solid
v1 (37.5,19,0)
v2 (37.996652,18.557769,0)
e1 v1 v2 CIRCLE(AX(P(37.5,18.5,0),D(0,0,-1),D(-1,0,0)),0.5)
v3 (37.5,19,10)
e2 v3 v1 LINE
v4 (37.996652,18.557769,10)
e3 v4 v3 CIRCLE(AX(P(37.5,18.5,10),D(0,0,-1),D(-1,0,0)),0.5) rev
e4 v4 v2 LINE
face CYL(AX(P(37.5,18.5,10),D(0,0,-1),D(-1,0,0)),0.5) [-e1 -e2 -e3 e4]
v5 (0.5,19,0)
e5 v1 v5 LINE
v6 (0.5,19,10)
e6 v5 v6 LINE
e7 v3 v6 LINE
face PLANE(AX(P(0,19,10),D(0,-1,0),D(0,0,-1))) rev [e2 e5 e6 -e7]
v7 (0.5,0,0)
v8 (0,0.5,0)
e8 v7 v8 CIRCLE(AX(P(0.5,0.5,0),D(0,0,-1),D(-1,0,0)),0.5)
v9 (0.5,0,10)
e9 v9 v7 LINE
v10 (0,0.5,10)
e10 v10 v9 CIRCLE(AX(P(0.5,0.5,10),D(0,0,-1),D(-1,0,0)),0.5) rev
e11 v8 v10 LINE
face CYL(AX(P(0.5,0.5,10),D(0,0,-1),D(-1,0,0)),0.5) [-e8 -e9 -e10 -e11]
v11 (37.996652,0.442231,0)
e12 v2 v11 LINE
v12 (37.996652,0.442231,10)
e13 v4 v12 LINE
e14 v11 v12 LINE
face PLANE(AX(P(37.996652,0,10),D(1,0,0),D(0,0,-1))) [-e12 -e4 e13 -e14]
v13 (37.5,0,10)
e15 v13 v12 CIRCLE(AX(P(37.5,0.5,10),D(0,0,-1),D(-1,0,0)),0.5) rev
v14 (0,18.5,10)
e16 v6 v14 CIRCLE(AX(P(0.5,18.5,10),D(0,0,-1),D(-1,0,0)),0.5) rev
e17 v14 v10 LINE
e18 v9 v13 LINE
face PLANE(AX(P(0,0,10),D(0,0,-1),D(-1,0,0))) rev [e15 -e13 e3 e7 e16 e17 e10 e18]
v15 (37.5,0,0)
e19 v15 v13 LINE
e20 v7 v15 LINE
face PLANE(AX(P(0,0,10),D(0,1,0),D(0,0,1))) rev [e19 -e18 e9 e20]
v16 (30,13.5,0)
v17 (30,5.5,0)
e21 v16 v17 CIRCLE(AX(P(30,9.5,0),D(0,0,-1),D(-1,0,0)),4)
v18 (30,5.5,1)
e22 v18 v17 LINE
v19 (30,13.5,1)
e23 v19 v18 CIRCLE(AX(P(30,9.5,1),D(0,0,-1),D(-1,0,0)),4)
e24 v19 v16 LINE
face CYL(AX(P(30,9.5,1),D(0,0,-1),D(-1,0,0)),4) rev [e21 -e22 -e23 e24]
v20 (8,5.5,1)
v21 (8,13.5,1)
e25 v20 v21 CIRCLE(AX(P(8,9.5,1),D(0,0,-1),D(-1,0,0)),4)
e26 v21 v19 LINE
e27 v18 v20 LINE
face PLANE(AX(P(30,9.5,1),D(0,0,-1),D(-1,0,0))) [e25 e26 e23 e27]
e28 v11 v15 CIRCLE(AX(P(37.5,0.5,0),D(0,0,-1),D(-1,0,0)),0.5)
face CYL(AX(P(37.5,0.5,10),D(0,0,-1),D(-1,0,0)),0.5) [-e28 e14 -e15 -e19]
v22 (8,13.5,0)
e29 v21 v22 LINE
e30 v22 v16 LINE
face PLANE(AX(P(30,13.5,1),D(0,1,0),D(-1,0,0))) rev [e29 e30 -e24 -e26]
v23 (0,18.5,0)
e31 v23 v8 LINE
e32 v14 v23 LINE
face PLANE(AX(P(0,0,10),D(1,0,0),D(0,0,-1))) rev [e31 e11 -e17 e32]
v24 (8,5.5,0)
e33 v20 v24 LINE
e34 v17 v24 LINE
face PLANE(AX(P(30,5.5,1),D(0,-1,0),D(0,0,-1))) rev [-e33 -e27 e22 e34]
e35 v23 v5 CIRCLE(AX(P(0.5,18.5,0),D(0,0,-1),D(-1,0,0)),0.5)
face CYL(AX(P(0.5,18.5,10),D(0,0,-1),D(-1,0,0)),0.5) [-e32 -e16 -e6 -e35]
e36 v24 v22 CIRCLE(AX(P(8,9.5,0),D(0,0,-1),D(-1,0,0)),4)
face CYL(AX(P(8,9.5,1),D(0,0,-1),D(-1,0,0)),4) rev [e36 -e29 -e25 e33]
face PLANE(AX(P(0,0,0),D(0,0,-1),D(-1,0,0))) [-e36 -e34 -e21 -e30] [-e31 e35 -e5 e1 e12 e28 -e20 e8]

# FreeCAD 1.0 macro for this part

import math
import FreeCAD as App
import Part
import Sketcher
Q = App.Units.Quantity


def edges_at(feature, points):
    """Names of the edges that pass closest to the given points."""
    edges = feature.Shape.Edges
    near = lambda p: min(range(len(edges)), key=lambda i: edges[i].distToShape(Part.Vertex(*p))[0])
    return sorted({f"Edge{near(p) + 1}" for p in points})

doc = App.newDocument("Part")
body = doc.addObject("PartDesign::Body", "Body")

sketch1 = body.newObject("Sketcher::SketchObject", "Sketch")
sketch1.AttachmentSupport = (doc.getObject("XY_Plane"), [""])
sketch1.MapMode = "FlatFace"
sketch1.addGeometry([
    Part.LineSegment(App.Vector(0, 19, 0), App.Vector(0, 0, 0)),
    Part.LineSegment(App.Vector(0, 0, 0), App.Vector(38, 0, 0)),
    Part.LineSegment(App.Vector(38, 0, 0), App.Vector(38, 19, 0)),
    Part.LineSegment(App.Vector(38, 19, 0), App.Vector(0, 19, 0)),
], False)
sketch1.addConstraint([
    Sketcher.Constraint("Coincident", 0, 2, 1, 1),
    Sketcher.Constraint("Coincident", 1, 2, 2, 1),
    Sketcher.Constraint("Coincident", 2, 2, 3, 1),
    Sketcher.Constraint("Coincident", 3, 2, 0, 1),
    Sketcher.Constraint("Vertical", 0),
    Sketcher.Constraint("Horizontal", 1),
    Sketcher.Constraint("Vertical", 2),
    Sketcher.Constraint("Horizontal", 3),
    Sketcher.Constraint("Coincident", 0, 2, -1, 1),
    Sketcher.Constraint("DistanceX", 1, 1, 1, 2, Q("38 mm")),
    Sketcher.Constraint("DistanceY", 0, 2, 0, 1, Q("19 mm")),
])
pad1 = body.newObject("PartDesign::Pad", "Pad")
pad1.Profile = sketch1
pad1.Length = 10

sketch2 = body.newObject("Sketcher::SketchObject", "Sketch001")
sketch2.AttachmentSupport = (doc.getObject("YZ_Plane"), [""])
sketch2.MapMode = "FlatFace"
sketch2.AttachmentOffset = App.Placement(App.Vector(0, 0, 38), App.Rotation())
sketch2.addGeometry([
    Part.LineSegment(App.Vector(14, 3.5, 0), App.Vector(5, 3.5, 0)),
    Part.LineSegment(App.Vector(5, 3.5, 0), App.Vector(5, 2, 0)),
    Part.LineSegment(App.Vector(5, 2, 0), App.Vector(14, 2, 0)),
    Part.LineSegment(App.Vector(14, 2, 0), App.Vector(14, 3.5, 0)),
], False)
sketch2.addConstraint([
    Sketcher.Constraint("Coincident", 0, 2, 1, 1),
    Sketcher.Constraint("Coincident", 1, 2, 2, 1),
    Sketcher.Constraint("Coincident", 2, 2, 3, 1),
    Sketcher.Constraint("Coincident", 3, 2, 0, 1),
    Sketcher.Constraint("Horizontal", 0),
    Sketcher.Constraint("Vertical", 1),
    Sketcher.Constraint("Horizontal", 2),
    Sketcher.Constraint("Vertical", 3),
    Sketcher.Constraint("DistanceX", 0, 2, 0, 1, Q("9 mm")),
    Sketcher.Constraint("DistanceY", 1, 2, 1, 1, Q("1.5 mm")),
    Sketcher.Constraint("DistanceX", -1, 1, 0, 2, Q("5 mm")),
    Sketcher.Constraint("DistanceY", -1, 1, 1, 2, Q("2 mm")),
])
pad2 = body.newObject("PartDesign::Pad", "Pad001")
pad2.Profile = sketch2
pad2.Length = 9

sketch3 = body.newObject("Sketcher::SketchObject", "Sketch002")
sketch3.AttachmentSupport = (doc.getObject("XY_Plane"), [""])
sketch3.MapMode = "FlatFace"
sketch3.AttachmentOffset = App.Placement(App.Vector(0, 0, 2), App.Rotation())
sketch3.addGeometry(Part.Circle(App.Vector(42.5, 9.5, 0), App.Vector(0, 0, 1), 1.5), False)
sketch3.addConstraint([
    Sketcher.Constraint("Diameter", 0, Q("3 mm")),
    Sketcher.Constraint("DistanceX", -1, 1, 0, 3, Q("42.5 mm")),
    Sketcher.Constraint("DistanceY", -1, 1, 0, 3, Q("9.5 mm")),
])
pocket1 = body.newObject("PartDesign::Pocket", "Pocket")
pocket1.Profile = sketch3
pocket1.Type = "ThroughAll"
pocket1.Reversed = True
doc.recompute()

datumplane = body.newObject("PartDesign::Plane", "DatumPlane")
datumplane.AttachmentSupport = (doc.getObject("YZ_Plane"), [""])
datumplane.MapMode = "FlatFace"
datumplane.AttachmentOffset = App.Placement(App.Vector(0, 0, 19), App.Rotation())
mirrored = body.newObject("PartDesign::Mirrored", "Mirrored")
mirrored.Originals = [pad2, pocket1]
mirrored.MirrorPlane = (datumplane, [""])
body.Tip = mirrored
doc.recompute()

fillet = body.newObject("PartDesign::Fillet", "Fillet")
fillet.Base = (mirrored, edges_at(mirrored, [
    (38, 5, 2.75),
    (38, 14, 2.75),
    (47, 5, 2.75),
    (47, 14, 2.75),
    (-9, 14, 2.75),
    (-9, 5, 2.75),
    (0, 5, 2.75),
    (0, 14, 2.75),
    (0, 19, 5),
    (38, 19, 5),
    (38, 0, 5),
    (0, 0, 5),
]))
fillet.Radius = 0.5

sketch4 = body.newObject("Sketcher::SketchObject", "Sketch003")
sketch4.AttachmentSupport = (doc.getObject("XY_Plane"), [""])
sketch4.MapMode = "FlatFace"
sketch4.addGeometry([
    Part.LineSegment(App.Vector(8, 13.5, 0), App.Vector(30, 13.5, 0)),
    Part.ArcOfCircle(Part.Circle(App.Vector(30, 9.5, 0), App.Vector(0, 0, 1), 4), math.radians(-90), math.radians(90)),
    Part.LineSegment(App.Vector(30, 5.5, 0), App.Vector(8, 5.5, 0)),
    Part.ArcOfCircle(Part.Circle(App.Vector(8, 9.5, 0), App.Vector(0, 0, 1), 4), math.radians(90), math.radians(270)),
], False)
sketch4.addConstraint([
    Sketcher.Constraint("Tangent", 0, 2, 1, 2),
    Sketcher.Constraint("Tangent", 1, 1, 2, 1),
    Sketcher.Constraint("Tangent", 2, 2, 3, 2),
    Sketcher.Constraint("Tangent", 3, 1, 0, 1),
    Sketcher.Constraint("Horizontal", 0),
    Sketcher.Constraint("Horizontal", 2),
    Sketcher.Constraint("Radius", 1, Q("4 mm")),
    Sketcher.Constraint("DistanceX", 0, 1, 0, 2, Q("22 mm")),
    Sketcher.Constraint("DistanceX", -1, 1, 1, 3, Q("30 mm")),
    Sketcher.Constraint("DistanceY", -1, 1, 1, 3, Q("9.5 mm")),
])
pocket2 = body.newObject("PartDesign::Pocket", "Pocket001")
pocket2.Profile = sketch4
pocket2.Length = 1
pocket2.Reversed = True

sketch5 = body.newObject("Sketcher::SketchObject", "Sketch004")
sketch5.AttachmentSupport = (doc.getObject("XY_Plane"), [""])
sketch5.MapMode = "FlatFace"
sketch5.addGeometry([
    Part.LineSegment(App.Vector(48.85834, 21.24569, 0), App.Vector(48.85834, -3.075873, 0)),
    Part.LineSegment(App.Vector(48.85834, -3.075873, 0), App.Vector(-10.723479, -3.075873, 0)),
    Part.LineSegment(App.Vector(-10.723479, -3.075873, 0), App.Vector(-10.723479, 21.24569, 0)),
    Part.LineSegment(App.Vector(-10.723479, 21.24569, 0), App.Vector(48.85834, 21.24569, 0)),
    Part.LineSegment(App.Vector(0, 0, 0), App.Vector(37.996652, 0, 0)),
    Part.LineSegment(App.Vector(37.996652, 0, 0), App.Vector(37.996652, 19, 0)),
    Part.LineSegment(App.Vector(37.996652, 19, 0), App.Vector(0, 19, 0)),
    Part.LineSegment(App.Vector(0, 19, 0), App.Vector(0, 0, 0)),
], False)
sketch5.addConstraint([
    Sketcher.Constraint("Coincident", 0, 2, 1, 1),
    Sketcher.Constraint("Coincident", 1, 2, 2, 1),
    Sketcher.Constraint("Coincident", 2, 2, 3, 1),
    Sketcher.Constraint("Coincident", 3, 2, 0, 1),
    Sketcher.Constraint("Coincident", 4, 2, 5, 1),
    Sketcher.Constraint("Coincident", 5, 2, 6, 1),
    Sketcher.Constraint("Coincident", 6, 2, 7, 1),
    Sketcher.Constraint("Coincident", 7, 2, 4, 1),
    Sketcher.Constraint("Vertical", 0),
    Sketcher.Constraint("Horizontal", 1),
    Sketcher.Constraint("Vertical", 2),
    Sketcher.Constraint("Horizontal", 3),
    Sketcher.Constraint("Horizontal", 4),
    Sketcher.Constraint("Vertical", 5),
    Sketcher.Constraint("Horizontal", 6),
    Sketcher.Constraint("Vertical", 7),
    Sketcher.Constraint("Coincident", 7, 2, -1, 1),
    Sketcher.Constraint("DistanceY", 5, 1, 5, 2, Q("19 mm")),
    Sketcher.Constraint("DistanceX", 1, 2, 1, 1, Q("59.581819 mm")),
    Sketcher.Constraint("DistanceX", 4, 1, 4, 2, Q("37.996652 mm")),
    Sketcher.Constraint("DistanceY", 0, 2, 0, 1, Q("24.321563 mm")),
    Sketcher.Constraint("DistanceX", -1, 1, 0, 2, Q("48.85834 mm")),
    Sketcher.Constraint("DistanceY", -1, 1, 2, 2, Q("21.24569 mm")),
])
pocket3 = body.newObject("PartDesign::Pocket", "Pocket002")
pocket3.Profile = sketch5
pocket3.Type = "ThroughAll"
pocket3.Reversed = True

doc.recompute()
